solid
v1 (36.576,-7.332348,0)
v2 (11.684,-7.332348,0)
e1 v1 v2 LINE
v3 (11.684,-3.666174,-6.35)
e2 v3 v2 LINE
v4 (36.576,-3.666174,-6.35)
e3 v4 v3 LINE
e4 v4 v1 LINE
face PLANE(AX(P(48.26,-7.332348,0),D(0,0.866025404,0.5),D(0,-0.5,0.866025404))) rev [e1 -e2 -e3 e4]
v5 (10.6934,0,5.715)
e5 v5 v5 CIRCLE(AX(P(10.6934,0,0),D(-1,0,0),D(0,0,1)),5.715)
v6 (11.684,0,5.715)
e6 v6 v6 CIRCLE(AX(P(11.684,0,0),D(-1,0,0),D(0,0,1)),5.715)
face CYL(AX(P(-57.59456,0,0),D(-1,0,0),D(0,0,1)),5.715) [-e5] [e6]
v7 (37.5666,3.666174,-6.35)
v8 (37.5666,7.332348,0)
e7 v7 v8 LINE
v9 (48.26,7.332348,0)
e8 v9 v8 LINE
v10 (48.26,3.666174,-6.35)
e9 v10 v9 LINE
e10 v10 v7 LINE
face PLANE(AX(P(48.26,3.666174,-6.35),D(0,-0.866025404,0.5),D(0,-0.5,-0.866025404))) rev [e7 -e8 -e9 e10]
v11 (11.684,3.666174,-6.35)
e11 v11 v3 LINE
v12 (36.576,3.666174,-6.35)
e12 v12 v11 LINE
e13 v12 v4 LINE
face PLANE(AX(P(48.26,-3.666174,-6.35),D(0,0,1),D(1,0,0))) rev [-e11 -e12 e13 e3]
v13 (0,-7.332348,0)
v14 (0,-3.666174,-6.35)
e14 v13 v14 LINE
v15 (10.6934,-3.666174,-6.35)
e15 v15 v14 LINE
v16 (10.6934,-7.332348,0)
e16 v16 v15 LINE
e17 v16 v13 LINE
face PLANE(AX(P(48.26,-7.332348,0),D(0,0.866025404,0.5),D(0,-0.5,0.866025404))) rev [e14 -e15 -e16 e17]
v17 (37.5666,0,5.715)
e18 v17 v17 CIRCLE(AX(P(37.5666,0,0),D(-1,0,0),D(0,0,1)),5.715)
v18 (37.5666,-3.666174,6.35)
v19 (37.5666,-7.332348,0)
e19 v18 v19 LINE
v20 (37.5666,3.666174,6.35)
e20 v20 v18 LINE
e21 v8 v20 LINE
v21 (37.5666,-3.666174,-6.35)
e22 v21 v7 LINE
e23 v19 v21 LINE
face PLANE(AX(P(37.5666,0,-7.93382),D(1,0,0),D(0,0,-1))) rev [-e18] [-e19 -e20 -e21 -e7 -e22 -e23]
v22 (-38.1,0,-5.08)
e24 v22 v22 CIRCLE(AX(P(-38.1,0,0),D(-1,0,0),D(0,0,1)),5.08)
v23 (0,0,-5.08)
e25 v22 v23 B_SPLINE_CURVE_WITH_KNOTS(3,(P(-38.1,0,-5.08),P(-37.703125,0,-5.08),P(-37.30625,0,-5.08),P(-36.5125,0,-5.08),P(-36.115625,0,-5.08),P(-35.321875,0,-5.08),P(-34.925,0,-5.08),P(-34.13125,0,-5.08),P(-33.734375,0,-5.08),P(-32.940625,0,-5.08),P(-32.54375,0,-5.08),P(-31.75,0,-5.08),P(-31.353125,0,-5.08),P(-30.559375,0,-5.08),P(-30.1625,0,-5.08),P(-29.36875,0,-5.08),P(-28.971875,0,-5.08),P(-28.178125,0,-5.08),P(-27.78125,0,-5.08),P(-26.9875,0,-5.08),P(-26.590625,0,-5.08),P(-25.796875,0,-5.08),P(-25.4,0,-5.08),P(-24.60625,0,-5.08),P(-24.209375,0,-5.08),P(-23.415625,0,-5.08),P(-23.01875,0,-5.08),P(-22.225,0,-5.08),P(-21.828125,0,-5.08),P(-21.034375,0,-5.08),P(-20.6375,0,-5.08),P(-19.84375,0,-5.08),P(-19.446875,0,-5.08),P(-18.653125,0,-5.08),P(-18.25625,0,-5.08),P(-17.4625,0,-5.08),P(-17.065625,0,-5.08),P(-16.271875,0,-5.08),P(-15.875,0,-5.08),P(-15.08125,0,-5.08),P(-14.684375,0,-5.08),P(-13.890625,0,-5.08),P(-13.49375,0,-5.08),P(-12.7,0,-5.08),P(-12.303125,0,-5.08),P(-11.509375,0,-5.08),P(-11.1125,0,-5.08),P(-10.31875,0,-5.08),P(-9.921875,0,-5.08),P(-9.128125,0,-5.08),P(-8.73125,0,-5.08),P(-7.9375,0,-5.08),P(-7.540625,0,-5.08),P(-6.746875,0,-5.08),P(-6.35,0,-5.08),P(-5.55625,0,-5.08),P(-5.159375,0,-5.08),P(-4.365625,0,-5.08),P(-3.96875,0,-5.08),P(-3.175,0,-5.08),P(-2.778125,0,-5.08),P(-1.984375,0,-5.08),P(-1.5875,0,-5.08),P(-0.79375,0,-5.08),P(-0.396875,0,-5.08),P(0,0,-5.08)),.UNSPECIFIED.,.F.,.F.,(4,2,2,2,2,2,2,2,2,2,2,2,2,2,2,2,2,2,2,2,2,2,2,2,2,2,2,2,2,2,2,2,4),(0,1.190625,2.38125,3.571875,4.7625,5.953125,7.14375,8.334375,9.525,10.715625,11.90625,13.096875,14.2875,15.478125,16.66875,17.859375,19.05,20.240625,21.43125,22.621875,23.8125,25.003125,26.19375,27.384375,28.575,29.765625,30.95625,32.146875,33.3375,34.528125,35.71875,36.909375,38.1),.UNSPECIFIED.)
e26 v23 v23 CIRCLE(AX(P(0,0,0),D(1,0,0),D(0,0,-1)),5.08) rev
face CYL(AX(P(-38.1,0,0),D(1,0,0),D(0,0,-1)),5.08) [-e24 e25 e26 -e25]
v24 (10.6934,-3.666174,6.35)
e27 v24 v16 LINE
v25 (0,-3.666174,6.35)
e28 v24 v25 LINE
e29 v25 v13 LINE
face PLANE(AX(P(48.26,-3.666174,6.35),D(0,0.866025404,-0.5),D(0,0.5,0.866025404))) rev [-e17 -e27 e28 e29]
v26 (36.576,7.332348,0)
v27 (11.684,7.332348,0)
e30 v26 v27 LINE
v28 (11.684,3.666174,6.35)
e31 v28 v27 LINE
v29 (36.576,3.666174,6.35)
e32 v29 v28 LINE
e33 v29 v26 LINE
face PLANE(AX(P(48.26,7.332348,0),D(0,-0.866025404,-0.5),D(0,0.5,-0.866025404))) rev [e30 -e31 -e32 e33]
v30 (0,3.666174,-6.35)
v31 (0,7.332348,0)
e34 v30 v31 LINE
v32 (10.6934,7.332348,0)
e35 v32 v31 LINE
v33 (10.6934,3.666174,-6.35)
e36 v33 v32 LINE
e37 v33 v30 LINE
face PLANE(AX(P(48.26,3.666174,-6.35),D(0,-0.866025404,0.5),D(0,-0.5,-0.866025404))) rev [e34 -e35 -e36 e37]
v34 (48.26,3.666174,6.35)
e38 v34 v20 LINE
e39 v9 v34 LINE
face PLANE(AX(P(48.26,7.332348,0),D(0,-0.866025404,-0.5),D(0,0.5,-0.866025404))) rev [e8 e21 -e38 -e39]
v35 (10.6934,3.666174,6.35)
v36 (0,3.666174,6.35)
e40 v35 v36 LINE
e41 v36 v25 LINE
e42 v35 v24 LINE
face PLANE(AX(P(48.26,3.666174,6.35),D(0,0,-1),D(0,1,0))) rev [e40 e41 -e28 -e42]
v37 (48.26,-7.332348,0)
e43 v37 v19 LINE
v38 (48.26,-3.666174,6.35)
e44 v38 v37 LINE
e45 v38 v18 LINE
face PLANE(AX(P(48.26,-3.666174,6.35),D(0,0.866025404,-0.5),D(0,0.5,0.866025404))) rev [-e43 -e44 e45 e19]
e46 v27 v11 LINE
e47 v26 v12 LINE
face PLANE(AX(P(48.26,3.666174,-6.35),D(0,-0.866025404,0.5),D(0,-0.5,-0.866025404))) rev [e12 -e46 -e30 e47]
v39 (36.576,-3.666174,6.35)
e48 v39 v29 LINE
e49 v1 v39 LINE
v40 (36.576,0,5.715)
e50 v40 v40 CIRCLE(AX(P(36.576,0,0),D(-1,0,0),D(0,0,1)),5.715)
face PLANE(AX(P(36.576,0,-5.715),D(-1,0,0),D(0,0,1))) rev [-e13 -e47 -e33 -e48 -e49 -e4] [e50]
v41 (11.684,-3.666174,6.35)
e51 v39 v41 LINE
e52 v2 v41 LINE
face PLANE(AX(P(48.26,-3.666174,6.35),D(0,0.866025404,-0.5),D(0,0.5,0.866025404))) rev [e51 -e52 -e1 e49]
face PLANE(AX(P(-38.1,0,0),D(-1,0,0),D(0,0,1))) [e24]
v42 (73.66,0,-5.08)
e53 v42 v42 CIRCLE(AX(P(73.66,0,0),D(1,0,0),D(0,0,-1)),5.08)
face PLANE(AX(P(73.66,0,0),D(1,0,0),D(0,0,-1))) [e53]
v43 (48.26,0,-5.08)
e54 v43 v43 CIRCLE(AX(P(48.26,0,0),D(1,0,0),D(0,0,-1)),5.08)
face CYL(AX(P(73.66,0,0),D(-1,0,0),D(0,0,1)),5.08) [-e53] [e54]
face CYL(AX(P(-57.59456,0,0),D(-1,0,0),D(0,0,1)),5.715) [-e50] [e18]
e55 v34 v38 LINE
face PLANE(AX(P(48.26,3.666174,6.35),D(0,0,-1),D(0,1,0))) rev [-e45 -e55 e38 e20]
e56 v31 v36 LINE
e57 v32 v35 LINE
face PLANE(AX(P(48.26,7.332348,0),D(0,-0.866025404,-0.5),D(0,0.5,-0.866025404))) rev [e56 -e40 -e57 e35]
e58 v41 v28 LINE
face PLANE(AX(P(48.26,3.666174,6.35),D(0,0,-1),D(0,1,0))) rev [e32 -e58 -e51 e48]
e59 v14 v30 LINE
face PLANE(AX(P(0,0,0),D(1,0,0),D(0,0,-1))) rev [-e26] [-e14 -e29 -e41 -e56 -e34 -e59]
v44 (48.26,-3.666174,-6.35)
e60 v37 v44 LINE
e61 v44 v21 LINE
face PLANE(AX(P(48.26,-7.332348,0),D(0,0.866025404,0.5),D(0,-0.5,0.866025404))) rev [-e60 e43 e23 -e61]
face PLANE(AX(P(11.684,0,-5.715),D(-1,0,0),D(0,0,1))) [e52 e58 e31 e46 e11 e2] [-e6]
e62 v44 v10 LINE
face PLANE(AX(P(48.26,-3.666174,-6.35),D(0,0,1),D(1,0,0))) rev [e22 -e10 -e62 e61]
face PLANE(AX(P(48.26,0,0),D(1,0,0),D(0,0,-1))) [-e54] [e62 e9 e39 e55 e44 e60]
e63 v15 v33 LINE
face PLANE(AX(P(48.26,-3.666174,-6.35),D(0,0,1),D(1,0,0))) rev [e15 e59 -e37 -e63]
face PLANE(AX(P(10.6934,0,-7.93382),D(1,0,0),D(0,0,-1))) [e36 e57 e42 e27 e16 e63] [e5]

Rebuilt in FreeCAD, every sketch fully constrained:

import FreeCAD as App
import Part
import Sketcher
from FreeCAD import Vector
Q = App.Units.Quantity

doc = App.newDocument("Part")
body = doc.addObject("PartDesign::Body", "Body")

# Sketch on YZ plane
sketch1 = body.newObject("Sketcher::SketchObject", "Sketch")
sketch1.AttachmentSupport = (doc.getObject("YZ_Plane"), [""])
sketch1.MapMode = "FlatFace"
sketch1.addGeometry([
    Part.LineSegment(Vector(-7.332348, 0, 0), Vector(-3.666174, -6.35, 0)),  # 0
    Part.LineSegment(Vector(-3.666174, -6.35, 0), Vector(3.666174, -6.35, 0)),  # 1
    Part.LineSegment(Vector(3.666174, -6.35, 0), Vector(7.332348, 0, 0)),  # 2
    Part.LineSegment(Vector(7.332348, 0, 0), Vector(3.666174, 6.35, 0)),  # 3
    Part.LineSegment(Vector(3.666174, 6.35, 0), Vector(-3.666174, 6.35, 0)),  # 4
    Part.LineSegment(Vector(-3.666174, 6.35, 0), Vector(-7.332348, 0, 0)),  # 5
], False)
sketch1.addConstraint([
    Sketcher.Constraint("Coincident", 0, 2, 1, 1),
    Sketcher.Constraint("Coincident", 1, 2, 2, 1),
    Sketcher.Constraint("Coincident", 2, 2, 3, 1),
    Sketcher.Constraint("Coincident", 3, 2, 4, 1),
    Sketcher.Constraint("Coincident", 4, 2, 5, 1),
    Sketcher.Constraint("Coincident", 5, 2, 0, 1),
    Sketcher.Constraint("Horizontal", 1),
    Sketcher.Constraint("Horizontal", 4),
    Sketcher.Constraint("Symmetric", 0, 2, 3, 2, -1, 1),
    Sketcher.Constraint("Symmetric", 2, 2, 5, 2, -1, 1),
    Sketcher.Constraint("PointOnObject", 2, 2, -1),
    Sketcher.Constraint("Parallel", 2, 5),
    Sketcher.Constraint("Vertical", 1, 2, 3, 2),
    Sketcher.Constraint("Angle", 0, Q("-60 deg")),
    Sketcher.Constraint("DistanceY", 1, 2, 3, 2, Q("0.5 in")),
    Sketcher.Constraint("DistanceX", 1, 1, 1, 2, Q("7.332348 mm")),
])
pad1 = body.newObject("PartDesign::Pad", "Pad")
pad1.Profile = sketch1
pad1.Length = Q("1.9 in")

# Sketch on YZ plane
sketch2 = body.newObject("Sketcher::SketchObject", "Sketch001")
sketch2.AttachmentSupport = (doc.getObject("YZ_Plane"), [""])
sketch2.MapMode = "FlatFace"
sketch2.addGeometry(Part.Circle(Vector(0, 0, 0), Vector(0, 0, 1), 5.08), False)
sketch2.addConstraint([
    Sketcher.Constraint("Coincident", 0, 3, -1, 1),
    Sketcher.Constraint("Diameter", 0, Q("0.4 in")),
])
pad2 = body.newObject("PartDesign::Pad", "Pad001")
pad2.Profile = sketch2
pad2.Length = Q("1.5 in")
pad2.Reversed = True

# Sketch on YZ plane
sketch3 = body.newObject("Sketcher::SketchObject", "Sketch002")
sketch3.AttachmentSupport = (doc.getObject("YZ_Plane"), [""])
sketch3.MapMode = "FlatFace"
sketch3.AttachmentOffset = App.Placement(Vector(0, 0, 2.9 * 25.4), App.Rotation())
sketch3.addGeometry(Part.Circle(Vector(0, 0, 0), Vector(0, 0, 1), 5.08), False)
sketch3.addConstraint([
    Sketcher.Constraint("Coincident", 0, 3, -1, 1),
    Sketcher.Constraint("Diameter", 0, Q("0.4 in")),
])
pad3 = body.newObject("PartDesign::Pad", "Pad002")
pad3.Profile = sketch3
pad3.Length = Q("1 in")
pad3.Reversed = True

# Sketch on XZ plane
sketch4 = body.newObject("Sketcher::SketchObject", "Sketch003")
sketch4.AttachmentSupport = (doc.getObject("XZ_Plane"), [""])
sketch4.MapMode = "FlatFace"
sketch4.addGeometry([
    Part.LineSegment(Vector(36.576, -7.93382, 0), Vector(36.576, -5.715, 0)),  # 0
    Part.LineSegment(Vector(36.576, -5.715, 0), Vector(37.5666, -5.715, 0)),  # 1
    Part.LineSegment(Vector(37.5666, -5.715, 0), Vector(37.5666, -7.93382, 0)),  # 2
    Part.LineSegment(Vector(37.5666, -7.93382, 0), Vector(36.576, -7.93382, 0)),  # 3
    Part.LineSegment(Vector(10.6934, -7.93382, 0), Vector(10.6934, -5.715, 0)),  # 4
    Part.LineSegment(Vector(10.6934, -5.715, 0), Vector(11.684, -5.715, 0)),  # 5
    Part.LineSegment(Vector(11.684, -5.715, 0), Vector(11.684, -7.93382, 0)),  # 6
    Part.LineSegment(Vector(11.684, -7.93382, 0), Vector(10.6934, -7.93382, 0)),  # 7
], False)
sketch4.addConstraint([
    Sketcher.Constraint("Coincident", 0, 2, 1, 1),
    Sketcher.Constraint("Coincident", 1, 2, 2, 1),
    Sketcher.Constraint("Coincident", 2, 2, 3, 1),
    Sketcher.Constraint("Coincident", 3, 2, 0, 1),
    Sketcher.Constraint("Coincident", 4, 2, 5, 1),
    Sketcher.Constraint("Coincident", 5, 2, 6, 1),
    Sketcher.Constraint("Coincident", 6, 2, 7, 1),
    Sketcher.Constraint("Coincident", 7, 2, 4, 1),
    Sketcher.Constraint("Vertical", 0),
    Sketcher.Constraint("Horizontal", 1),
    Sketcher.Constraint("Vertical", 2),
    Sketcher.Constraint("Horizontal", 3),
    Sketcher.Constraint("Vertical", 4),
    Sketcher.Constraint("Horizontal", 5),
    Sketcher.Constraint("Vertical", 6),
    Sketcher.Constraint("Horizontal", 7),
    Sketcher.Constraint("Horizontal", 1, 2, 4, 2),
    Sketcher.Constraint("Horizontal", 3, 2, 6, 2),
    Sketcher.Constraint("Equal", 3, 5),
    Sketcher.Constraint("DistanceX", 1, 1, 1, 2, Q("0.039 in")),
    Sketcher.Constraint("DistanceX", -1, 1, 0, 2, Q("1.44 in")),
    Sketcher.Constraint("DistanceX", -1, 1, 5, 2, Q("0.46 in")),
    Sketcher.Constraint("DistanceY", 0, 2, -1, 1, Q("0.225 in")),
    Sketcher.Constraint("DistanceY", 0, 1, 0, 2, Q("2.21882 mm")),
])
groove = body.newObject("PartDesign::Groove", "Groove")
groove.Profile = sketch4
groove.ReferenceAxis = (sketch4, ["H_Axis"])
groove.Angle = 360

doc.recompute()
